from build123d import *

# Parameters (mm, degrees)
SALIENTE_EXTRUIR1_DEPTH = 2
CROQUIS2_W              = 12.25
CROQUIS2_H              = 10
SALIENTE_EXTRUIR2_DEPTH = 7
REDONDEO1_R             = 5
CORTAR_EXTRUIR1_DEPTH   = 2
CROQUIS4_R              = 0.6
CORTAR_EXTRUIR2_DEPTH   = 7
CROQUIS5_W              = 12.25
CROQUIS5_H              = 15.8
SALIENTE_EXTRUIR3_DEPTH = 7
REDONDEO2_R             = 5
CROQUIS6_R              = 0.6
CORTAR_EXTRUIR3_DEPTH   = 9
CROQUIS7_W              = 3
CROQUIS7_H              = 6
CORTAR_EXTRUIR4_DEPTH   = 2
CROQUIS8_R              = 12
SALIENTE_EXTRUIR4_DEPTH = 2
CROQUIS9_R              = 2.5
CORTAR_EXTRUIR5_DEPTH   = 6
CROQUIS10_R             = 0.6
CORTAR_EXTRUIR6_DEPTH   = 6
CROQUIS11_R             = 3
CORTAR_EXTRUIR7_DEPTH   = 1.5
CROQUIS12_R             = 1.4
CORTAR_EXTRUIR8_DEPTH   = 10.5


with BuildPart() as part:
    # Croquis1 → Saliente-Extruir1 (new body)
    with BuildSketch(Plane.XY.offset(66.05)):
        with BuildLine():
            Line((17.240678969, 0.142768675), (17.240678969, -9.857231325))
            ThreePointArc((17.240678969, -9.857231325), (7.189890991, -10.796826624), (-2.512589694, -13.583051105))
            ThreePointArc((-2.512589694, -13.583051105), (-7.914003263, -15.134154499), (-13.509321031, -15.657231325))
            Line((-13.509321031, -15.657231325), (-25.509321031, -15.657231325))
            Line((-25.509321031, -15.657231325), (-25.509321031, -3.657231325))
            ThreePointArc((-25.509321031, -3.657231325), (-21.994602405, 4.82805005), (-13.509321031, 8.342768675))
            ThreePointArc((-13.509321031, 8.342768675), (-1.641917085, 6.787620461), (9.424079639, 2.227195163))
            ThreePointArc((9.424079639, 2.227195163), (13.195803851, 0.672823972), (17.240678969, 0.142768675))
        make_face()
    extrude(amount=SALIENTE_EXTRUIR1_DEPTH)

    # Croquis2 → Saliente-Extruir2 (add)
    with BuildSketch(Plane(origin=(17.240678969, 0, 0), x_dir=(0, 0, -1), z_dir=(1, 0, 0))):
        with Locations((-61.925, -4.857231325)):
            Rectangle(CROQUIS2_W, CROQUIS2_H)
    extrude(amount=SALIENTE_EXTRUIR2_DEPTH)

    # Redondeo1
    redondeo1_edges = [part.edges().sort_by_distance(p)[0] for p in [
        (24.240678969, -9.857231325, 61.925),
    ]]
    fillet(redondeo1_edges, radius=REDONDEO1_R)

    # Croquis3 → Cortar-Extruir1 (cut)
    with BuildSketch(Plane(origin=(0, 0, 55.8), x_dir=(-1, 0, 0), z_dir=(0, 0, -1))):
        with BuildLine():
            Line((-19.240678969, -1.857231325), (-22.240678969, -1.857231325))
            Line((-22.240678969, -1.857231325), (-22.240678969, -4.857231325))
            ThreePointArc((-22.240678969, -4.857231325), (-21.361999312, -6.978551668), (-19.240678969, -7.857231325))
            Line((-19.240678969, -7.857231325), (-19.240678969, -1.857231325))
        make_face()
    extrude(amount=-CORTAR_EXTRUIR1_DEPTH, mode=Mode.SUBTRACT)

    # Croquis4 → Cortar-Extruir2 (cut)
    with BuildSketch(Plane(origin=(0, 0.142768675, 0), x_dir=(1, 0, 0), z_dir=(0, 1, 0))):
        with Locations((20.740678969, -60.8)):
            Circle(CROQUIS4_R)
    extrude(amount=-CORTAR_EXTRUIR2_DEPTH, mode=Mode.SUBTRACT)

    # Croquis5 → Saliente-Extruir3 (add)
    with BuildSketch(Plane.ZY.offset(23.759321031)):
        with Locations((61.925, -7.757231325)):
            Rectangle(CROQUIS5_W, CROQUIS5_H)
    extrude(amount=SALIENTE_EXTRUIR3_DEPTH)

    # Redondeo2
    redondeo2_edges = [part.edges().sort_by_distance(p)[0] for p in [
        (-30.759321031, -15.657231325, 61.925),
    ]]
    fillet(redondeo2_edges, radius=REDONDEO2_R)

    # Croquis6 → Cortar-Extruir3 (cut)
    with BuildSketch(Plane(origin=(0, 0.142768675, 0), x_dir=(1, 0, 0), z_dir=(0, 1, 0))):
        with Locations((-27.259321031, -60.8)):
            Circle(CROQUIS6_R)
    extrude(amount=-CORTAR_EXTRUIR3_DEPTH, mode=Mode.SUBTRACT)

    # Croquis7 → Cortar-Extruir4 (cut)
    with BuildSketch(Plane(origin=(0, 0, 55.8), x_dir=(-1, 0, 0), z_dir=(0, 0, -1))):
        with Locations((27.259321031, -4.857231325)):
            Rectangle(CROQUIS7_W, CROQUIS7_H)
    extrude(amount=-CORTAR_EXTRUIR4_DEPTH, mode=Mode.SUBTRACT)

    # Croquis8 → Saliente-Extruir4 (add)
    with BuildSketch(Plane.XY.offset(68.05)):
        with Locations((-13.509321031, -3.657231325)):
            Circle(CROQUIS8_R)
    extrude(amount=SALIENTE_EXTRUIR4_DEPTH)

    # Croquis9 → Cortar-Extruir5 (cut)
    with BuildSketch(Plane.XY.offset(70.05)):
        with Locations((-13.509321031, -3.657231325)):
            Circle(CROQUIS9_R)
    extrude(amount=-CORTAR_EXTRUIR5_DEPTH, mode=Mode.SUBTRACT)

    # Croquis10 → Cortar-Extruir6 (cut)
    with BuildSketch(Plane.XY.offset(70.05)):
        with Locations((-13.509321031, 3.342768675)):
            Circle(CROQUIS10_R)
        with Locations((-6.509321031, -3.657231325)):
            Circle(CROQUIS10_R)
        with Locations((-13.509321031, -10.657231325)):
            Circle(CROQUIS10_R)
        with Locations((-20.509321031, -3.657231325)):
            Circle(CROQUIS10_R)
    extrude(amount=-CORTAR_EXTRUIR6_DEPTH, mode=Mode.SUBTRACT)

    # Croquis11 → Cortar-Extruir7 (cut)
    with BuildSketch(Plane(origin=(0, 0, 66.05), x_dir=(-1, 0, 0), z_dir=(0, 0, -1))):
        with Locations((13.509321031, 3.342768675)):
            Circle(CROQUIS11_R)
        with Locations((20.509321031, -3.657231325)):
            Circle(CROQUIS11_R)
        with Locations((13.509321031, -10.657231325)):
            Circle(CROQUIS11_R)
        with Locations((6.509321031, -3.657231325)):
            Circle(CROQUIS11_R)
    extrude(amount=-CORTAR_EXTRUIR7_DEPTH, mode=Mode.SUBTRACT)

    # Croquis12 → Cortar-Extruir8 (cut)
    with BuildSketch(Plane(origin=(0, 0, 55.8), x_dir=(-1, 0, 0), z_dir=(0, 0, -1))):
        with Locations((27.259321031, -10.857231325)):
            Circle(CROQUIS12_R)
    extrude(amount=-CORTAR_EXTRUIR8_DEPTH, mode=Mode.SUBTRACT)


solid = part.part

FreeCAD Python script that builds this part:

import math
import FreeCAD as App
import Part
import Sketcher
from FreeCAD import Vector
Q = App.Units.Quantity


def edges_at(feature, points):
    """Names of the edges that pass closest to the given points."""
    edges = feature.Shape.Edges
    near = lambda p: min(range(len(edges)), key=lambda i: edges[i].distToShape(Part.Vertex(*p))[0])
    return sorted({f"Edge{near(p) + 1}" for p in points})

doc = App.newDocument("Part")
body = doc.addObject("PartDesign::Body", "Body")

# Sketch on XY plane
sketch1 = body.newObject("Sketcher::SketchObject", "Sketch")
sketch1.AttachmentSupport = (doc.getObject("XY_Plane"), [""])
sketch1.MapMode = "FlatFace"
sketch1.AttachmentOffset = App.Placement(Vector(0, 0, 66.05), App.Rotation())
sketch1.addGeometry(Part.LineSegment(Vector(17, -10, 0), Vector(17, 0, 0)), False)
sketch1.addGeometry(Part.ArcOfCircle(Part.Circle(Vector(17, 16, 0), Vector(0, 0, 1), 16), math.radians(-120), math.radians(-90)), False)
sketch1.addGeometry(Part.ArcOfCircle(Part.Circle(Vector(-14, -38, 0), Vector(0, 0, 1), 46), math.radians(60), math.radians(90)), False)
sketch1.addGeometry(Part.ArcOfCircle(Part.Circle(Vector(-14, -4, 0), Vector(0, 0, 1), 12), math.radians(90), math.radians(180)), False)
sketch1.addGeometry(Part.LineSegment(Vector(-26, -4, 0), Vector(-26, -16, 0)), False)
sketch1.addGeometry(Part.LineSegment(Vector(-26, -16, 0), Vector(-14, -16, 0)), False)
sketch1.addGeometry(Part.ArcOfCircle(Part.Circle(Vector(-14, 15, 0), Vector(0, 0, 1), 30), math.radians(-90), math.radians(-69)), False)
sketch1.addGeometry(Part.ArcOfCircle(Part.Circle(Vector(17, -64, 0), Vector(0, 0, 1), 54), math.radians(90), math.radians(111)), False)
sketch1.addConstraint(Sketcher.Constraint("Coincident", 0, 2, 1, 2))
sketch1.addConstraint(Sketcher.Constraint("Tangent", 1, 1, 2, 1))
sketch1.addConstraint(Sketcher.Constraint("Tangent", 2, 2, 3, 1))
sketch1.addConstraint(Sketcher.Constraint("Tangent", 3, 2, 4, 1))
sketch1.addConstraint(Sketcher.Constraint("Coincident", 4, 2, 5, 1))
sketch1.addConstraint(Sketcher.Constraint("Tangent", 5, 2, 6, 1))
sketch1.addConstraint(Sketcher.Constraint("Tangent", 6, 2, 7, 2))
sketch1.addConstraint(Sketcher.Constraint("Coincident", 7, 1, 0, 1))
sketch1.addConstraint(Sketcher.Constraint("Vertical", 0))
sketch1.addConstraint(Sketcher.Constraint("Vertical", 4))
sketch1.addConstraint(Sketcher.Constraint("Horizontal", 5))
sketch1.addConstraint(Sketcher.Constraint("Vertical", 2, 3, 3, 3))
sketch1.addConstraint(Sketcher.Constraint("Vertical", 3, 3, 6, 3))
sketch1.addConstraint(Sketcher.Constraint("Vertical", 1, 3, 7, 3))
sketch1.addConstraint(Sketcher.Constraint("Vertical", 7, 3, 0, 2))
sketch1.addConstraint(Sketcher.Constraint("Equal", 5, 4))
sketch1.addConstraint(Sketcher.Constraint("Radius", 3, Q("12 mm")))
sketch1.addConstraint(Sketcher.Constraint("DistanceY", 0, 1, 0, 2, Q("10 mm")))
sketch1.addConstraint(Sketcher.Constraint("Radius", 7, Q("54.226101 mm")))
sketch1.addConstraint(Sketcher.Constraint("DistanceY", 3, 3, 0, 2, Q("3.8 mm")))
sketch1.addConstraint(Sketcher.Constraint("Radius", 6, Q("30.187908 mm")))
sketch1.addConstraint(Sketcher.Constraint("Radius", 1, Q("15.698337 mm")))
sketch1.addConstraint(Sketcher.Constraint("DistanceX", -1, 1, 1, 3, Q("17.240679 mm")))
sketch1.addConstraint(Sketcher.Constraint("DistanceY", 3, 3, -1, 1, Q("3.657231 mm")))
pad1 = body.newObject("PartDesign::Pad", "Pad")
pad1.Profile = sketch1
pad1.Length = 2

# Sketch on YZ plane
sketch2 = body.newObject("Sketcher::SketchObject", "Sketch001")
sketch2.AttachmentSupport = (doc.getObject("YZ_Plane"), [""])
sketch2.MapMode = "FlatFace"
sketch2.AttachmentOffset = App.Placement(Vector(0, 0, 17.240679), App.Rotation())
sketch2.addGeometry(Part.LineSegment(Vector(0, 68, 0), Vector(-10, 68, 0)), False)
sketch2.addGeometry(Part.LineSegment(Vector(-10, 68, 0), Vector(-10, 56, 0)), False)
sketch2.addGeometry(Part.LineSegment(Vector(-10, 56, 0), Vector(0, 56, 0)), False)
sketch2.addGeometry(Part.LineSegment(Vector(0, 56, 0), Vector(0, 68, 0)), False)
sketch2.addConstraint(Sketcher.Constraint("Coincident", 0, 2, 1, 1))
sketch2.addConstraint(Sketcher.Constraint("Coincident", 1, 2, 2, 1))
sketch2.addConstraint(Sketcher.Constraint("Coincident", 2, 2, 3, 1))
sketch2.addConstraint(Sketcher.Constraint("Coincident", 3, 2, 0, 1))
sketch2.addConstraint(Sketcher.Constraint("Horizontal", 0))
sketch2.addConstraint(Sketcher.Constraint("Vertical", 1))
sketch2.addConstraint(Sketcher.Constraint("Horizontal", 2))
sketch2.addConstraint(Sketcher.Constraint("Vertical", 3))
sketch2.addConstraint(Sketcher.Constraint("DistanceX", 0, 2, 0, 1, Q("10 mm")))
sketch2.addConstraint(Sketcher.Constraint("DistanceY", 1, 2, 1, 1, Q("12.25 mm")))
sketch2.addConstraint(Sketcher.Constraint("DistanceY", -1, 1, 1, 2, Q("55.8 mm")))
sketch2.addConstraint(Sketcher.Constraint("DistanceX", 0, 2, -1, 1, Q("9.857231 mm")))
pad2 = body.newObject("PartDesign::Pad", "Pad001")
pad2.Profile = sketch2
pad2.Length = 7
doc.recompute()

fillet = body.newObject("PartDesign::Fillet", "Fillet")
fillet.Base = (pad2, edges_at(pad2, [(24.241, -9.857, 61.925)]))
fillet.Radius = 5

# Sketch on XY plane
sketch3 = body.newObject("Sketcher::SketchObject", "Sketch002")
sketch3.AttachmentSupport = (doc.getObject("XY_Plane"), [""])
sketch3.MapMode = "FlatFace"
sketch3.AttachmentOffset = App.Placement(Vector(0, 0, 55.8), App.Rotation())
sketch3.addGeometry(Part.LineSegment(Vector(19.2, -1.9, 0), Vector(22.2, -1.9, 0)), False)
sketch3.addGeometry(Part.LineSegment(Vector(22.2, -1.9, 0), Vector(22.2, -4.9, 0)), False)
sketch3.addGeometry(Part.ArcOfCircle(Part.Circle(Vector(19.2, -4.9, 0), Vector(0, 0, 1), 3), math.radians(-90), math.radians(0)), False)
sketch3.addGeometry(Part.LineSegment(Vector(19.2, -7.9, 0), Vector(19.2, -1.9, 0)), False)
sketch3.addConstraint(Sketcher.Constraint("Coincident", 0, 2, 1, 1))
sketch3.addConstraint(Sketcher.Constraint("Tangent", 1, 2, 2, 2))
sketch3.addConstraint(Sketcher.Constraint("Coincident", 2, 1, 3, 1))
sketch3.addConstraint(Sketcher.Constraint("Coincident", 3, 2, 0, 1))
sketch3.addConstraint(Sketcher.Constraint("Horizontal", 0))
sketch3.addConstraint(Sketcher.Constraint("Vertical", 1))
sketch3.addConstraint(Sketcher.Constraint("Vertical", 3))
sketch3.addConstraint(Sketcher.Constraint("Equal", 0, 1))
sketch3.addConstraint(Sketcher.Constraint("Radius", 2, Q("3 mm")))
sketch3.addConstraint(Sketcher.Constraint("DistanceX", 0, 1, 0, 2, Q("3 mm")))
sketch3.addConstraint(Sketcher.Constraint("DistanceX", -1, 1, 2, 3, Q("19.240679 mm")))
sketch3.addConstraint(Sketcher.Constraint("DistanceY", 2, 3, -1, 1, Q("4.857231 mm")))
pocket1 = body.newObject("PartDesign::Pocket", "Pocket")
pocket1.Profile = sketch3
pocket1.Length = 2
pocket1.Reversed = True

# Sketch on XZ plane
sketch4 = body.newObject("Sketcher::SketchObject", "Sketch003")
sketch4.AttachmentSupport = (doc.getObject("XZ_Plane"), [""])
sketch4.MapMode = "FlatFace"
sketch4.AttachmentOffset = App.Placement(Vector(0, 0, -0.142769), App.Rotation())
sketch4.addGeometry(Part.Circle(Vector(20.7, 60.8, 0), Vector(0, 0, 1), 0.6), False)
sketch4.addConstraint(Sketcher.Constraint("Diameter", 0, Q("1.2 mm")))
sketch4.addConstraint(Sketcher.Constraint("DistanceY", -1, 1, 0, 3, Q("60.8 mm")))
sketch4.addConstraint(Sketcher.Constraint("DistanceX", -1, 1, 0, 3, Q("20.740679 mm")))
pocket2 = body.newObject("PartDesign::Pocket", "Pocket001")
pocket2.Profile = sketch4
pocket2.Length = 7
pocket2.Reversed = True

# Sketch on YZ plane
sketch5 = body.newObject("Sketcher::SketchObject", "Sketch004")
sketch5.AttachmentSupport = (doc.getObject("YZ_Plane"), [""])
sketch5.MapMode = "FlatFace"
sketch5.AttachmentOffset = App.Placement(Vector(0, 0, -23.759321), App.Rotation())
sketch5.addGeometry(Part.LineSegment(Vector(0, 56, 0), Vector(-16, 56, 0)), False)
sketch5.addGeometry(Part.LineSegment(Vector(-16, 56, 0), Vector(-16, 68, 0)), False)
sketch5.addGeometry(Part.LineSegment(Vector(-16, 68, 0), Vector(0, 68, 0)), False)
sketch5.addGeometry(Part.LineSegment(Vector(0, 68, 0), Vector(0, 56, 0)), False)
sketch5.addConstraint(Sketcher.Constraint("Coincident", 0, 2, 1, 1))
sketch5.addConstraint(Sketcher.Constraint("Coincident", 1, 2, 2, 1))
sketch5.addConstraint(Sketcher.Constraint("Coincident", 2, 2, 3, 1))
sketch5.addConstraint(Sketcher.Constraint("Coincident", 3, 2, 0, 1))
sketch5.addConstraint(Sketcher.Constraint("Horizontal", 0))
sketch5.addConstraint(Sketcher.Constraint("Vertical", 1))
sketch5.addConstraint(Sketcher.Constraint("Horizontal", 2))
sketch5.addConstraint(Sketcher.Constraint("Vertical", 3))
sketch5.addConstraint(Sketcher.Constraint("DistanceX", 0, 2, 0, 1, Q("15.8 mm")))
sketch5.addConstraint(Sketcher.Constraint("DistanceY", 1, 1, 1, 2, Q("12.25 mm")))
sketch5.addConstraint(Sketcher.Constraint("DistanceY", -1, 1, 0, 2, Q("55.8 mm")))
sketch5.addConstraint(Sketcher.Constraint("DistanceX", 0, 2, -1, 1, Q("15.657231 mm")))
pad3 = body.newObject("PartDesign::Pad", "Pad002")
pad3.Profile = sketch5
pad3.Length = 7
pad3.Reversed = True
doc.recompute()

fillet2 = body.newObject("PartDesign::Fillet", "Fillet001")
fillet2.Base = (pad3, edges_at(pad3, [(-30.759, -15.657, 61.925)]))
fillet2.Radius = 5

# Sketch on XZ plane
sketch6 = body.newObject("Sketcher::SketchObject", "Sketch005")
sketch6.AttachmentSupport = (doc.getObject("XZ_Plane"), [""])
sketch6.MapMode = "FlatFace"
sketch6.AttachmentOffset = App.Placement(Vector(0, 0, -0.142769), App.Rotation())
sketch6.addGeometry(Part.Circle(Vector(-27.3, 60.8, 0), Vector(0, 0, 1), 0.6), False)
sketch6.addConstraint(Sketcher.Constraint("Diameter", 0, Q("1.2 mm")))
sketch6.addConstraint(Sketcher.Constraint("DistanceY", -1, 1, 0, 3, Q("60.8 mm")))
sketch6.addConstraint(Sketcher.Constraint("DistanceX", 0, 3, -1, 1, Q("27.259321 mm")))
pocket3 = body.newObject("PartDesign::Pocket", "Pocket002")
pocket3.Profile = sketch6
pocket3.Length = 9
pocket3.Reversed = True

# Sketch on XY plane
sketch7 = body.newObject("Sketcher::SketchObject", "Sketch006")
sketch7.AttachmentSupport = (doc.getObject("XY_Plane"), [""])
sketch7.MapMode = "FlatFace"
sketch7.AttachmentOffset = App.Placement(Vector(0, 0, 55.8), App.Rotation())
sketch7.addGeometry(Part.LineSegment(Vector(-25.8, -1.9, 0), Vector(-25.8, -7.9, 0)), False)
sketch7.addGeometry(Part.LineSegment(Vector(-25.8, -7.9, 0), Vector(-28.8, -7.9, 0)), False)
sketch7.addGeometry(Part.LineSegment(Vector(-28.8, -7.9, 0), Vector(-28.8, -1.9, 0)), False)
sketch7.addGeometry(Part.LineSegment(Vector(-28.8, -1.9, 0), Vector(-25.8, -1.9, 0)), False)
sketch7.addConstraint(Sketcher.Constraint("Coincident", 0, 2, 1, 1))
sketch7.addConstraint(Sketcher.Constraint("Coincident", 1, 2, 2, 1))
sketch7.addConstraint(Sketcher.Constraint("Coincident", 2, 2, 3, 1))
sketch7.addConstraint(Sketcher.Constraint("Coincident", 3, 2, 0, 1))
sketch7.addConstraint(Sketcher.Constraint("Vertical", 0))
sketch7.addConstraint(Sketcher.Constraint("Horizontal", 1))
sketch7.addConstraint(Sketcher.Constraint("Vertical", 2))
sketch7.addConstraint(Sketcher.Constraint("Horizontal", 3))
sketch7.addConstraint(Sketcher.Constraint("DistanceX", 1, 2, 1, 1, Q("3 mm")))
sketch7.addConstraint(Sketcher.Constraint("DistanceY", 0, 2, 0, 1, Q("6 mm")))
sketch7.addConstraint(Sketcher.Constraint("DistanceX", 0, 2, -1, 1, Q("25.759321 mm")))
sketch7.addConstraint(Sketcher.Constraint("DistanceY", 0, 2, -1, 1, Q("7.857231 mm")))
pocket4 = body.newObject("PartDesign::Pocket", "Pocket003")
pocket4.Profile = sketch7
pocket4.Length = 2
pocket4.Reversed = True

# Sketch on XY plane
sketch8 = body.newObject("Sketcher::SketchObject", "Sketch007")
sketch8.AttachmentSupport = (doc.getObject("XY_Plane"), [""])
sketch8.MapMode = "FlatFace"
sketch8.AttachmentOffset = App.Placement(Vector(0, 0, 68.05), App.Rotation())
sketch8.addGeometry(Part.Circle(Vector(-14, -4, 0), Vector(0, 0, 1), 12), False)
sketch8.addConstraint(Sketcher.Constraint("Diameter", 0, Q("24 mm")))
sketch8.addConstraint(Sketcher.Constraint("DistanceX", 0, 3, -1, 1, Q("13.509321 mm")))
sketch8.addConstraint(Sketcher.Constraint("DistanceY", 0, 3, -1, 1, Q("3.657231 mm")))
pad4 = body.newObject("PartDesign::Pad", "Pad003")
pad4.Profile = sketch8
pad4.Length = 2

# Sketch on XY plane
sketch9 = body.newObject("Sketcher::SketchObject", "Sketch008")
sketch9.AttachmentSupport = (doc.getObject("XY_Plane"), [""])
sketch9.MapMode = "FlatFace"
sketch9.AttachmentOffset = App.Placement(Vector(0, 0, 70.05), App.Rotation())
sketch9.addGeometry(Part.Circle(Vector(-13.5, -3.7, 0), Vector(0, 0, 1), 2.5), False)
sketch9.addConstraint(Sketcher.Constraint("Diameter", 0, Q("5 mm")))
sketch9.addConstraint(Sketcher.Constraint("DistanceX", 0, 3, -1, 1, Q("13.509321 mm")))
sketch9.addConstraint(Sketcher.Constraint("DistanceY", 0, 3, -1, 1, Q("3.657231 mm")))
pocket5 = body.newObject("PartDesign::Pocket", "Pocket004")
pocket5.Profile = sketch9
pocket5.Length = 6

# Sketch on XY plane
sketch10 = body.newObject("Sketcher::SketchObject", "Sketch009")
sketch10.AttachmentSupport = (doc.getObject("XY_Plane"), [""])
sketch10.MapMode = "FlatFace"
sketch10.AttachmentOffset = App.Placement(Vector(0, 0, 70.05), App.Rotation())
sketch10.addGeometry(Part.Circle(Vector(-13.5, 3.3, 0), Vector(0, 0, 1), 0.6), False)
sketch10.addGeometry(Part.Circle(Vector(-6.5, -3.7, 0), Vector(0, 0, 1), 0.6), False)
sketch10.addGeometry(Part.Circle(Vector(-13.5, -10.7, 0), Vector(0, 0, 1), 0.6), False)
sketch10.addGeometry(Part.Circle(Vector(-20.5, -3.7, 0), Vector(0, 0, 1), 0.6), False)
sketch10.addConstraint(Sketcher.Constraint("Equal", 0, 1))
sketch10.addConstraint(Sketcher.Constraint("Equal", 1, 2))
sketch10.addConstraint(Sketcher.Constraint("Equal", 2, 3))
sketch10.addConstraint(Sketcher.Constraint("Horizontal", 1, 3, 3, 3))
sketch10.addConstraint(Sketcher.Constraint("Vertical", 0, 3, 2, 3))
sketch10.addConstraint(Sketcher.Constraint("Diameter", 0, Q("1.2 mm")))
sketch10.addConstraint(Sketcher.Constraint("DistanceX", 0, 3, 1, 3, Q("7 mm")))
sketch10.addConstraint(Sketcher.Constraint("DistanceY", 1, 3, 0, 3, Q("7 mm")))
sketch10.addConstraint(Sketcher.Constraint("DistanceY", 2, 3, 1, 3, Q("7 mm")))
sketch10.addConstraint(Sketcher.Constraint("DistanceX", 3, 3, 0, 3, Q("7 mm")))
sketch10.addConstraint(Sketcher.Constraint("DistanceX", 0, 3, -1, 1, Q("13.509321 mm")))
sketch10.addConstraint(Sketcher.Constraint("DistanceY", -1, 1, 0, 3, Q("3.342769 mm")))
pocket6 = body.newObject("PartDesign::Pocket", "Pocket005")
pocket6.Profile = sketch10
pocket6.Length = 6

# Sketch on XY plane
sketch11 = body.newObject("Sketcher::SketchObject", "Sketch010")
sketch11.AttachmentSupport = (doc.getObject("XY_Plane"), [""])
sketch11.MapMode = "FlatFace"
sketch11.AttachmentOffset = App.Placement(Vector(0, 0, 66.05), App.Rotation())
sketch11.addGeometry(Part.Circle(Vector(-13.5, 3.3, 0), Vector(0, 0, 1), 3), False)
sketch11.addGeometry(Part.Circle(Vector(-20.5, -3.7, 0), Vector(0, 0, 1), 3), False)
sketch11.addGeometry(Part.Circle(Vector(-13.5, -10.7, 0), Vector(0, 0, 1), 3), False)
sketch11.addGeometry(Part.Circle(Vector(-6.5, -3.7, 0), Vector(0, 0, 1), 3), False)
sketch11.addConstraint(Sketcher.Constraint("Equal", 0, 1))
sketch11.addConstraint(Sketcher.Constraint("Equal", 1, 2))
sketch11.addConstraint(Sketcher.Constraint("Equal", 2, 3))
sketch11.addConstraint(Sketcher.Constraint("Horizontal", 1, 3, 3, 3))
sketch11.addConstraint(Sketcher.Constraint("Vertical", 0, 3, 2, 3))
sketch11.addConstraint(Sketcher.Constraint("Diameter", 0, Q("6 mm")))
sketch11.addConstraint(Sketcher.Constraint("DistanceX", 1, 3, 0, 3, Q("7 mm")))
sketch11.addConstraint(Sketcher.Constraint("DistanceY", 1, 3, 0, 3, Q("7 mm")))
sketch11.addConstraint(Sketcher.Constraint("DistanceY", 2, 3, 1, 3, Q("7 mm")))
sketch11.addConstraint(Sketcher.Constraint("DistanceX", 0, 3, 3, 3, Q("7 mm")))
sketch11.addConstraint(Sketcher.Constraint("DistanceX", 0, 3, -1, 1, Q("13.509321 mm")))
sketch11.addConstraint(Sketcher.Constraint("DistanceY", -1, 1, 0, 3, Q("3.342769 mm")))
pocket7 = body.newObject("PartDesign::Pocket", "Pocket006")
pocket7.Profile = sketch11
pocket7.Length = 1.5
pocket7.Reversed = True

# Sketch on XY plane
sketch12 = body.newObject("Sketcher::SketchObject", "Sketch011")
sketch12.AttachmentSupport = (doc.getObject("XY_Plane"), [""])
sketch12.MapMode = "FlatFace"
sketch12.AttachmentOffset = App.Placement(Vector(0, 0, 55.8), App.Rotation())
sketch12.addGeometry(Part.Circle(Vector(-27.3, -10.9, 0), Vector(0, 0, 1), 1.4), False)
sketch12.addConstraint(Sketcher.Constraint("Diameter", 0, Q("2.8 mm")))
sketch12.addConstraint(Sketcher.Constraint("DistanceX", 0, 3, -1, 1, Q("27.259321 mm")))
sketch12.addConstraint(Sketcher.Constraint("DistanceY", 0, 3, -1, 1, Q("10.857231 mm")))
pocket8 = body.newObject("PartDesign::Pocket", "Pocket007")
pocket8.Profile = sketch12
pocket8.Length = 10.5
pocket8.Reversed = True

doc.recompute()
